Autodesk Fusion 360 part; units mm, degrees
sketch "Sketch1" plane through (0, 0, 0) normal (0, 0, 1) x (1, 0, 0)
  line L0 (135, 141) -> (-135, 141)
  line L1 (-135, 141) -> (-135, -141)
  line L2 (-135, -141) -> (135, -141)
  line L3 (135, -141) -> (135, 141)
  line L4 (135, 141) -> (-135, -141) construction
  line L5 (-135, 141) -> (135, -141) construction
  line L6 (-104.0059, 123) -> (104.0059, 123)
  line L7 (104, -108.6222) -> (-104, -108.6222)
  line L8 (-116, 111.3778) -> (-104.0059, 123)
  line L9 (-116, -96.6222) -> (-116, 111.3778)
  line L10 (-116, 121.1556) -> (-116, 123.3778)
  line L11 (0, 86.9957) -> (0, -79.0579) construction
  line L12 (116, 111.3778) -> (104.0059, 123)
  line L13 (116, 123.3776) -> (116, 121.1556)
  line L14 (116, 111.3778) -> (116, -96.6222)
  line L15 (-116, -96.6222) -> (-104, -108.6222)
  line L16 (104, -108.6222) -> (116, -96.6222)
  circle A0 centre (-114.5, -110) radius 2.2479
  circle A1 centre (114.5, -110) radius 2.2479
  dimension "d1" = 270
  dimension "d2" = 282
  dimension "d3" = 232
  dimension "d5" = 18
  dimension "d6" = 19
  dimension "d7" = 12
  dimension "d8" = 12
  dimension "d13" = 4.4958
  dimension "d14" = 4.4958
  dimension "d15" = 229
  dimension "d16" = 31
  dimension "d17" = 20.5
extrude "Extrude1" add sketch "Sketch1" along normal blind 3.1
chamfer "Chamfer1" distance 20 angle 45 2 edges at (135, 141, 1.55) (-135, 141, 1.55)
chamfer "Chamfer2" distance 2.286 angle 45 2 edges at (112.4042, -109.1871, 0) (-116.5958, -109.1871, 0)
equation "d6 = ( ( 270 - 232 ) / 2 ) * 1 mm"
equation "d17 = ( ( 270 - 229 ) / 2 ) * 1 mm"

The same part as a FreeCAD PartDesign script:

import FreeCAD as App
import Part
import Sketcher

V = App.Vector
Q = App.Units.Quantity


def edges_at(feature, points):
    """Names of the edges that pass closest to the given points."""
    edges = feature.Shape.Edges
    near = lambda p: min(range(len(edges)), key=lambda i: edges[i].distToShape(Part.Vertex(*p))[0])
    return sorted({f"Edge{near(p) + 1}" for p in points})


def add_polygon(sketch, points):
    """Adds a closed chain of lines whose ends are joined by coincident constraints."""
    first, n = sketch.GeometryCount, len(points)
    for a, b in zip(points, points[1:] + points[:1]):
        sketch.addGeometry(Part.LineSegment(App.Vector(*a, 0), App.Vector(*b, 0)), False)
    for i in range(n):
        sketch.addConstraint(Sketcher.Constraint("Coincident", first + i, 2, first + (i + 1) % n, 1))

doc = App.newDocument("Part")
body = doc.addObject("PartDesign::Body", "Body")

# Sketch on XY plane
sketch1 = doc.addObject("Sketcher::SketchObject", "Sketch")
body.addObject(sketch1)
sketch1.AttachmentSupport = (doc.XY_Plane, [""])
sketch1.MapMode = "FlatFace"
add_polygon(sketch1, [(135, -141), (135, 141), (-135, 141), (-135, -141)])  # lines 0-3
sketch1.addGeometry(Part.Circle(V(-114.5, -110, 0), V(0, 0, 1), 2.2), False)  # 4
sketch1.addGeometry(Part.Circle(V(114.5, -110, 0), V(0, 0, 1), 2.2), False)  # 5
add_polygon(sketch1, [(-116, 111.4), (-104, 123), (104, 123), (116, 111.4), (116, -96.6), (104, -108.6), (-104, -108.6), (-116, -96.6)])  # lines 6-13
sketch1.addConstraint(Sketcher.Constraint("Vertical", 0))
sketch1.addConstraint(Sketcher.Constraint("Horizontal", 1))
sketch1.addConstraint(Sketcher.Constraint("Vertical", 2))
sketch1.addConstraint(Sketcher.Constraint("Horizontal", 3))
sketch1.addConstraint(Sketcher.Constraint("Horizontal", 7))
sketch1.addConstraint(Sketcher.Constraint("Vertical", 9))
sketch1.addConstraint(Sketcher.Constraint("Horizontal", 11))
sketch1.addConstraint(Sketcher.Constraint("Vertical", 13))
sketch1.addConstraint(Sketcher.Constraint("Equal", 4, 5))
sketch1.addConstraint(Sketcher.Constraint("Symmetric", 0, 2, 2, 2, -1, 1))
sketch1.addConstraint(Sketcher.Constraint("Symmetric", 4, 3, 5, 3, -2))
sketch1.addConstraint(Sketcher.Constraint("Symmetric", 9, 2, 12, 2, -2))
sketch1.addConstraint(Sketcher.Constraint("Perpendicular", 10, 12))
sketch1.addConstraint(Sketcher.Constraint("Horizontal", 8, 2, 13, 2))
sketch1.addConstraint(Sketcher.Constraint("Equal", 11, 9))
sketch1.addConstraint(Sketcher.Constraint("Equal", 6, 8))
sketch1.addConstraint(Sketcher.Constraint("Equal", 10, 12))
sketch1.addConstraint(Sketcher.Constraint("DistanceX", 1, 2, 1, 1, Q("270 mm")))
sketch1.addConstraint(Sketcher.Constraint("DistanceY", 0, 1, 0, 2, Q("282 mm")))
sketch1.addConstraint(Sketcher.Constraint("DistanceX", 4, 3, 5, 3, Q("229 mm")))
sketch1.addConstraint(Sketcher.Constraint("DistanceY", 2, 2, 4, 3, Q("31 mm")))
sketch1.addConstraint(Sketcher.Constraint("DistanceY", 6, 2, 1, 2, Q("18 mm")))
sketch1.addConstraint(Sketcher.Constraint("DistanceX", 8, 2, 0, 2, Q("19 mm")))
sketch1.addConstraint(Sketcher.Constraint("DistanceX", 10, 2, 9, 2, Q("12 mm")))
sketch1.addConstraint(Sketcher.Constraint("Diameter", 4, Q("4.4958 mm")))
sketch1.addConstraint(Sketcher.Constraint("DistanceX", 7, 1, 7, 2, Q("208.0118 mm")))
sketch1.addConstraint(Sketcher.Constraint("Distance", 6, Q("16.7013 mm")))
pad1 = doc.addObject("PartDesign::Pad", "Pad")
body.addObject(pad1)
pad1.Profile = sketch1
pad1.Length = 3.1
doc.recompute()

chamfer = doc.addObject("PartDesign::Chamfer", "Chamfer")
body.addObject(chamfer)
chamfer.Base = (pad1, edges_at(pad1, [(135, 141, 1.55), (-135, 141, 1.55)]))
chamfer.Size = 20
doc.recompute()

chamfer2 = doc.addObject("PartDesign::Chamfer", "Chamfer001")
body.addObject(chamfer2)
chamfer2.Base = (chamfer, edges_at(chamfer, [(112.404, -109.187, 0), (-116.596, -109.187, 0)]))
chamfer2.Size = 2.286

doc.recompute()
